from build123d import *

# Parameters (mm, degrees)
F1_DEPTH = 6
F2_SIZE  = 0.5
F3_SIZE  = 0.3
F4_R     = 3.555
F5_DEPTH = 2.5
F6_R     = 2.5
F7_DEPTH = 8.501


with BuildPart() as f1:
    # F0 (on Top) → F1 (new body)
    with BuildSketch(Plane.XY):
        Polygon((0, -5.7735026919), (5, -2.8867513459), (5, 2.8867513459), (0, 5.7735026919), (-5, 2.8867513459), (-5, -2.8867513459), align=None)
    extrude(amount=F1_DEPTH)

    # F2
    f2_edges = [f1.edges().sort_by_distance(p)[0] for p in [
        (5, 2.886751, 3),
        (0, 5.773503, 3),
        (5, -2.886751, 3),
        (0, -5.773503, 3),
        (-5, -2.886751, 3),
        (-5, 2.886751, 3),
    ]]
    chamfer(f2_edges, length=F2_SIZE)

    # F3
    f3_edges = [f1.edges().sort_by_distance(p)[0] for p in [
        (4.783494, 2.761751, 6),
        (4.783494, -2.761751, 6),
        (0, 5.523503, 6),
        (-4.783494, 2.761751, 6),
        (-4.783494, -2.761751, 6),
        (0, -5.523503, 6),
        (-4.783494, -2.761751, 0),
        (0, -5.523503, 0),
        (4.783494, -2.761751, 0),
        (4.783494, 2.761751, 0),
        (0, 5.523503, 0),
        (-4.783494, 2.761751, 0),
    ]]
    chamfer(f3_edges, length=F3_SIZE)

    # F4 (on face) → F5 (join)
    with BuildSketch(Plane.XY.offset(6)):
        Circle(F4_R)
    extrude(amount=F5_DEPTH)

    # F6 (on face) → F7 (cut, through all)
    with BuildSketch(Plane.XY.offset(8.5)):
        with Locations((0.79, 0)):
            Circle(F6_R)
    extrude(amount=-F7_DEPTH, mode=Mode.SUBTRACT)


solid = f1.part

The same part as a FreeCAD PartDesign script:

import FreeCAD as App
import Part
import Sketcher
Q = App.Units.Quantity


def edges_at(feature, points):
    """Names of the edges that pass closest to the given points."""
    edges = feature.Shape.Edges
    near = lambda p: min(range(len(edges)), key=lambda i: edges[i].distToShape(Part.Vertex(*p))[0])
    return sorted({f"Edge{near(p) + 1}" for p in points})

doc = App.newDocument("Part")
body = doc.addObject("PartDesign::Body", "Body")

# Sketch on XY plane
sketch1 = body.newObject("Sketcher::SketchObject", "Sketch")
sketch1.AttachmentSupport = (doc.getObject("XY_Plane"), [""])
sketch1.MapMode = "FlatFace"
sketch1.addGeometry(Part.LineSegment(App.Vector(0, -6, 0), App.Vector(5, -3, 0)), False)
sketch1.addGeometry(Part.LineSegment(App.Vector(5, -3, 0), App.Vector(5, 3, 0)), False)
sketch1.addGeometry(Part.LineSegment(App.Vector(5, 3, 0), App.Vector(0, 6, 0)), False)
sketch1.addGeometry(Part.LineSegment(App.Vector(0, 6, 0), App.Vector(-5, 3, 0)), False)
sketch1.addGeometry(Part.LineSegment(App.Vector(-5, 3, 0), App.Vector(-5, -3, 0)), False)
sketch1.addGeometry(Part.LineSegment(App.Vector(-5, -3, 0), App.Vector(0, -6, 0)), False)
sketch1.addConstraint(Sketcher.Constraint("Coincident", 0, 2, 1, 1))
sketch1.addConstraint(Sketcher.Constraint("Coincident", 1, 2, 2, 1))
sketch1.addConstraint(Sketcher.Constraint("Coincident", 2, 2, 3, 1))
sketch1.addConstraint(Sketcher.Constraint("Coincident", 3, 2, 4, 1))
sketch1.addConstraint(Sketcher.Constraint("Coincident", 4, 2, 5, 1))
sketch1.addConstraint(Sketcher.Constraint("Coincident", 5, 2, 0, 1))
sketch1.addConstraint(Sketcher.Constraint("Vertical", 1))
sketch1.addConstraint(Sketcher.Constraint("Vertical", 4))
sketch1.addConstraint(Sketcher.Constraint("Symmetric", 0, 2, 3, 2, -1, 1))
sketch1.addConstraint(Sketcher.Constraint("Symmetric", 2, 2, 5, 2, -1, 1))
sketch1.addConstraint(Sketcher.Constraint("PointOnObject", 2, 2, -2))
sketch1.addConstraint(Sketcher.Constraint("Parallel", 2, 5))
sketch1.addConstraint(Sketcher.Constraint("Horizontal", 1, 2, 3, 2))
sketch1.addConstraint(Sketcher.Constraint("Angle", 0, Q("30 deg")))
sketch1.addConstraint(Sketcher.Constraint("DistanceX", -1, 1, 0, 2, Q("5 mm")))
sketch1.addConstraint(Sketcher.Constraint("DistanceY", 1, 1, 1, 2, Q("5.773503 mm")))
pad1 = body.newObject("PartDesign::Pad", "Pad")
pad1.Profile = sketch1
pad1.Length = 6
doc.recompute()

chamfer = body.newObject("PartDesign::Chamfer", "Chamfer")
chamfer.Base = (pad1, edges_at(pad1, [
    (5, 2.887, 3),
    (0, 5.774, 3),
    (5, -2.887, 3),
    (0, -5.774, 3),
    (-5, -2.887, 3),
    (-5, 2.887, 3),
]))
chamfer.Size = 0.5
doc.recompute()

chamfer2 = body.newObject("PartDesign::Chamfer", "Chamfer001")
chamfer2.Base = (chamfer, edges_at(chamfer, [
    (4.783, 2.762, 6),
    (4.783, -2.762, 6),
    (0, 5.524, 6),
    (-4.783, 2.762, 6),
    (-4.783, -2.762, 6),
    (0, -5.524, 6),
    (-4.783, -2.762, 0),
    (0, -5.524, 0),
    (4.783, -2.762, 0),
    (4.783, 2.762, 0),
    (0, 5.524, 0),
    (-4.783, 2.762, 0),
]))
chamfer2.Size = 0.3

# Sketch on XY plane
sketch2 = body.newObject("Sketcher::SketchObject", "Sketch001")
sketch2.AttachmentSupport = (doc.getObject("XY_Plane"), [""])
sketch2.MapMode = "FlatFace"
sketch2.AttachmentOffset = App.Placement(App.Vector(0, 0, 6), App.Rotation())
sketch2.addGeometry(Part.Circle(App.Vector(0, 0, 0), App.Vector(0, 0, 1), 3.6), False)
sketch2.addConstraint(Sketcher.Constraint("Coincident", 0, 3, -1, 1))
sketch2.addConstraint(Sketcher.Constraint("Diameter", 0, Q("7.11 mm")))
pad2 = body.newObject("PartDesign::Pad", "Pad001")
pad2.Profile = sketch2
pad2.Length = 2.5

# Sketch on XY plane
sketch3 = body.newObject("Sketcher::SketchObject", "Sketch002")
sketch3.AttachmentSupport = (doc.getObject("XY_Plane"), [""])
sketch3.MapMode = "FlatFace"
sketch3.AttachmentOffset = App.Placement(App.Vector(0, 0, 8.5), App.Rotation())
sketch3.addGeometry(Part.Circle(App.Vector(0.8, 0, 0), App.Vector(0, 0, 1), 2.5), False)
sketch3.addConstraint(Sketcher.Constraint("PointOnObject", 0, 3, -1))
sketch3.addConstraint(Sketcher.Constraint("Diameter", 0, Q("5 mm")))
sketch3.addConstraint(Sketcher.Constraint("DistanceX", -1, 1, 0, 3, Q("0.79 mm")))
pocket1 = body.newObject("PartDesign::Pocket", "Pocket")
pocket1.Profile = sketch3
pocket1.Type = "ThroughAll"

doc.recompute()
